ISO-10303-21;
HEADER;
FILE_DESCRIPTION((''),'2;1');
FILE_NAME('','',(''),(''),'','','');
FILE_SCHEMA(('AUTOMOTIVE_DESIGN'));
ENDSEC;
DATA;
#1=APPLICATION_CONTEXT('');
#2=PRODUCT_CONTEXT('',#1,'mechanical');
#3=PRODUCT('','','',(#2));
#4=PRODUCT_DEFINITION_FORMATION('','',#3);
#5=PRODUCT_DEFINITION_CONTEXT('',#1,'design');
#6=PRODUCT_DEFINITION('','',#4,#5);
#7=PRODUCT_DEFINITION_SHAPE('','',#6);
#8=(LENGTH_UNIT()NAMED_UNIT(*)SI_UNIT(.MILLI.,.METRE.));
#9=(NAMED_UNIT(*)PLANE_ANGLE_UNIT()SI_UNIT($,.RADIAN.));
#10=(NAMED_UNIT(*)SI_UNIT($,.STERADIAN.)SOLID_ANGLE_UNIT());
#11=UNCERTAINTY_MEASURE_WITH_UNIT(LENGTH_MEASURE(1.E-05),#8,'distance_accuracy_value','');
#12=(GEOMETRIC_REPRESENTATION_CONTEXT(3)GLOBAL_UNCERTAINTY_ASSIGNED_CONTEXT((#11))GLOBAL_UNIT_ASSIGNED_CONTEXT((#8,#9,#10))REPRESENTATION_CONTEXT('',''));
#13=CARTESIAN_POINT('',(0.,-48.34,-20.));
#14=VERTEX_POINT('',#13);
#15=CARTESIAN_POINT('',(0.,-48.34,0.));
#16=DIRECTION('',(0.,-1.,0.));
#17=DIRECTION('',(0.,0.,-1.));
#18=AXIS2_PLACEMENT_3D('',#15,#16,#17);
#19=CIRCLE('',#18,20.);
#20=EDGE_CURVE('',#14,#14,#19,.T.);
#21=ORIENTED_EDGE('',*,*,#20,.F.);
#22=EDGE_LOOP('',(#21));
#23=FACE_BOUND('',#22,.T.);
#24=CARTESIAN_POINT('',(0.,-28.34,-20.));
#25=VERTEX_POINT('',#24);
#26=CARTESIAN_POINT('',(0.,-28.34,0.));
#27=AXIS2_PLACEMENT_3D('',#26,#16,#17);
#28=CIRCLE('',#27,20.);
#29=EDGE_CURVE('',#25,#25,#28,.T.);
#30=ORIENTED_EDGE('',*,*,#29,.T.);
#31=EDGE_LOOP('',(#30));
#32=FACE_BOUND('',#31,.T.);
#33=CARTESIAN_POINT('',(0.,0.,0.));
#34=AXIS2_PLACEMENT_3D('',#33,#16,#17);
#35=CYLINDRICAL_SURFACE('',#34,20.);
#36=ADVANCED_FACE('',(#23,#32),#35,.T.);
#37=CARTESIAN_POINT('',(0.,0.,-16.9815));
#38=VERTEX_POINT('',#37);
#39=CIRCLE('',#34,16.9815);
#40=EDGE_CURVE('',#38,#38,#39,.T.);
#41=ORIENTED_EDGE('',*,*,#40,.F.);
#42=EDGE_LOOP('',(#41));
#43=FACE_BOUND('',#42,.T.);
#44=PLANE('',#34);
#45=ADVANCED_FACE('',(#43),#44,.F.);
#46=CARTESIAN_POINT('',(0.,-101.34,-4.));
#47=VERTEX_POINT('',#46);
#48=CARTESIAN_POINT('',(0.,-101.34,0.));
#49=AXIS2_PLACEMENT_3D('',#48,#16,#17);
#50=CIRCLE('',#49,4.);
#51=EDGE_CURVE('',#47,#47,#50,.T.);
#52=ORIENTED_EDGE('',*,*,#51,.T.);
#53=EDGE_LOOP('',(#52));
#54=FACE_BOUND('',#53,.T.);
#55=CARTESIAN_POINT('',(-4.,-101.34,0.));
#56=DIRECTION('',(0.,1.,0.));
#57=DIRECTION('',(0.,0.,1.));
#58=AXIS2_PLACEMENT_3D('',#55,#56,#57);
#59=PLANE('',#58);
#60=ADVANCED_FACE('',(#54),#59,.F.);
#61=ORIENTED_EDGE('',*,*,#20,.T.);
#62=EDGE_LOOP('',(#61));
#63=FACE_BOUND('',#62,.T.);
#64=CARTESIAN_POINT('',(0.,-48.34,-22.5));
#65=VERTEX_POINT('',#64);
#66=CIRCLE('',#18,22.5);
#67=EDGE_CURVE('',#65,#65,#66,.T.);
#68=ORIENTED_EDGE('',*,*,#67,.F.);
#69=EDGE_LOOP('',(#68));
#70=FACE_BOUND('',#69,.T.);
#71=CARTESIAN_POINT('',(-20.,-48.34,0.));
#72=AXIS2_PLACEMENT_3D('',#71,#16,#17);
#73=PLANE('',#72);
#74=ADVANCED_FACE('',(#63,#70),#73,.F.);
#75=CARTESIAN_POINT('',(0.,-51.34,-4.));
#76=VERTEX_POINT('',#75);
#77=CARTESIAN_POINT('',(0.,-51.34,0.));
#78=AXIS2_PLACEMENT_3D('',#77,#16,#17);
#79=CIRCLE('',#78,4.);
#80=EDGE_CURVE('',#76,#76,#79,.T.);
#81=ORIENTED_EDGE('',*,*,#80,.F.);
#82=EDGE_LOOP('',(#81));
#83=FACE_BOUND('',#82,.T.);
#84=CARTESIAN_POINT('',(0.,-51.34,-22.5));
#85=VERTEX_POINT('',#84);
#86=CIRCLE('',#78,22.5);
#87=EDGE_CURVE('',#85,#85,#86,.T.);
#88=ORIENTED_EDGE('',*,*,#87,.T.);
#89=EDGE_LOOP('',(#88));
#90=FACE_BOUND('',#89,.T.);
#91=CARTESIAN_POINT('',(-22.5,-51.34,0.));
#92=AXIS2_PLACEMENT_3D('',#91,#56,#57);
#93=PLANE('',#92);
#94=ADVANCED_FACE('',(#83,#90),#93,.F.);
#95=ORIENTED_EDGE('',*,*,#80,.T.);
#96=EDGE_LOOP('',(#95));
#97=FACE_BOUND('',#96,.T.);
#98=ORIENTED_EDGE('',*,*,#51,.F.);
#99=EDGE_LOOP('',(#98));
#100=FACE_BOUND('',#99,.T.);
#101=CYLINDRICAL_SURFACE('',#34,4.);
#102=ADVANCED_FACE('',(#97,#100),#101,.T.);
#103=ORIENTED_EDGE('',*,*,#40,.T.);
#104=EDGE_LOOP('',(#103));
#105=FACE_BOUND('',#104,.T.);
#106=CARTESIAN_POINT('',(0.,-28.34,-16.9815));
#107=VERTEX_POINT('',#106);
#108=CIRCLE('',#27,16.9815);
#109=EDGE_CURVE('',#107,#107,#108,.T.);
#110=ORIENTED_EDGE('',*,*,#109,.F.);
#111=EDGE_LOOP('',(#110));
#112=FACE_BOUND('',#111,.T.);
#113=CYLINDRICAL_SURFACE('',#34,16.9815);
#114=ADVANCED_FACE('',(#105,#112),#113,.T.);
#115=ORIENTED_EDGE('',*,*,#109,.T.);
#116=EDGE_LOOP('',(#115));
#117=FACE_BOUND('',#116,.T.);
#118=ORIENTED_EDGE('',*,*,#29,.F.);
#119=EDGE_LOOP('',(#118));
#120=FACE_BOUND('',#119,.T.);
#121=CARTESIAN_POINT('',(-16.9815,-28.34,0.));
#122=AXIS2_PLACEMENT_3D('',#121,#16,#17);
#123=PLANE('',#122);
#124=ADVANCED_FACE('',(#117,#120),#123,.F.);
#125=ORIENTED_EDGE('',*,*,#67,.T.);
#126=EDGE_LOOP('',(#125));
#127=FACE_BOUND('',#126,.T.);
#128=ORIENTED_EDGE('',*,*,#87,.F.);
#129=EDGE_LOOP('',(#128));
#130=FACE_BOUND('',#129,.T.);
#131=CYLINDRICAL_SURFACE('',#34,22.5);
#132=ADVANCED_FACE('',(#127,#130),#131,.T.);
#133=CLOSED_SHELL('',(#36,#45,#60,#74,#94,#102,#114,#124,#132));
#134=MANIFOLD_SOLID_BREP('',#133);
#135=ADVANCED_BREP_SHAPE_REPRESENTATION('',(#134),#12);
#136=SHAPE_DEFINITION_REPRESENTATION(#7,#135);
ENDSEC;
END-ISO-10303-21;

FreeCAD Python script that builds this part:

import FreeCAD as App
import Part
import Sketcher


def add_polygon(sketch, points):
    """Adds a closed chain of lines whose ends are joined by coincident constraints."""
    first, n = sketch.GeometryCount, len(points)
    for a, b in zip(points, points[1:] + points[:1]):
        sketch.addGeometry(Part.LineSegment(App.Vector(*a, 0), App.Vector(*b, 0)), False)
    for i in range(n):
        sketch.addConstraint(Sketcher.Constraint("Coincident", first + i, 2, first + (i + 1) % n, 1))

doc = App.newDocument("Part")
params = doc.addObject("Spreadsheet::Sheet", "Params")
for row, (alias, value) in enumerate([
    ("sketch1_width", "4 mm"),
    ("sketch1_height", "20 mm"),
    ("sketch1_height2", "3 mm"),
    ("sketch1_height3", "50 mm"),
    ("sketch1_width2", "2.5 mm"),
    ("revolution_angle", "360 deg"),
], start=1):
    params.set(f"A{row}", alias)
    params.set(f"B{row}", "=" + value)
    params.setAlias(f"B{row}", alias)

body = doc.addObject("PartDesign::Body", "Body")

sketch1 = body.newObject("Sketcher::SketchObject", "Sketch")
sketch1.AttachmentSupport = (doc.getObject("XY_Plane"), [""])
sketch1.MapMode = "FlatFace"
add_polygon(sketch1, [(0, 0), (-17, 0), (-17, -28.3), (-20, -28.3), (-20, -48.3), (-22.5, -48.3), (-22.5, -51.3), (-4, -51.3), (-4, -101.3), (0, -101.3)])
sketch1.addConstraint([
    Sketcher.Constraint("Horizontal", 0),
    Sketcher.Constraint("Vertical", 1),
    Sketcher.Constraint("Horizontal", 2),
    Sketcher.Constraint("Vertical", 3),
    Sketcher.Constraint("Horizontal", 4),
    Sketcher.Constraint("Vertical", 5),
    Sketcher.Constraint("Horizontal", 6),
    Sketcher.Constraint("Vertical", 7),
    Sketcher.Constraint("Horizontal", 8),
    Sketcher.Constraint("Vertical", 9),
    Sketcher.Constraint("Coincident", 9, 2, -1, 1),
    Sketcher.Constraint("DistanceX", 8, 1, 8, 2, 4.0),
    Sketcher.Constraint("DistanceY", 3, 2, 3, 1, 20.0),
    Sketcher.Constraint("DistanceY", 5, 2, 5, 1, 3.0),
    Sketcher.Constraint("DistanceY", 7, 2, 7, 1, 50.0),
    Sketcher.Constraint("DistanceX", 4, 2, 4, 1, 2.5),
    Sketcher.Constraint("DistanceX", 6, 1, 6, 2, 18.5),
    Sketcher.Constraint("DistanceY", 1, 2, 1, 1, 28.34),
    Sketcher.Constraint("DistanceX", 0, 2, 0, 1, 16.9815),
])
sketch1.setExpression("Constraints[21]", "Params.sketch1_width")
sketch1.setExpression("Constraints[22]", "Params.sketch1_height")
sketch1.setExpression("Constraints[23]", "Params.sketch1_height2")
sketch1.setExpression("Constraints[24]", "Params.sketch1_height3")
sketch1.setExpression("Constraints[25]", "Params.sketch1_width2")
revolution = body.newObject("PartDesign::Revolution", "Revolution")
revolution.Profile = sketch1
revolution.ReferenceAxis = (sketch1, ["V_Axis"])
revolution.setExpression("Angle", "Params.revolution_angle")

doc.recompute()
